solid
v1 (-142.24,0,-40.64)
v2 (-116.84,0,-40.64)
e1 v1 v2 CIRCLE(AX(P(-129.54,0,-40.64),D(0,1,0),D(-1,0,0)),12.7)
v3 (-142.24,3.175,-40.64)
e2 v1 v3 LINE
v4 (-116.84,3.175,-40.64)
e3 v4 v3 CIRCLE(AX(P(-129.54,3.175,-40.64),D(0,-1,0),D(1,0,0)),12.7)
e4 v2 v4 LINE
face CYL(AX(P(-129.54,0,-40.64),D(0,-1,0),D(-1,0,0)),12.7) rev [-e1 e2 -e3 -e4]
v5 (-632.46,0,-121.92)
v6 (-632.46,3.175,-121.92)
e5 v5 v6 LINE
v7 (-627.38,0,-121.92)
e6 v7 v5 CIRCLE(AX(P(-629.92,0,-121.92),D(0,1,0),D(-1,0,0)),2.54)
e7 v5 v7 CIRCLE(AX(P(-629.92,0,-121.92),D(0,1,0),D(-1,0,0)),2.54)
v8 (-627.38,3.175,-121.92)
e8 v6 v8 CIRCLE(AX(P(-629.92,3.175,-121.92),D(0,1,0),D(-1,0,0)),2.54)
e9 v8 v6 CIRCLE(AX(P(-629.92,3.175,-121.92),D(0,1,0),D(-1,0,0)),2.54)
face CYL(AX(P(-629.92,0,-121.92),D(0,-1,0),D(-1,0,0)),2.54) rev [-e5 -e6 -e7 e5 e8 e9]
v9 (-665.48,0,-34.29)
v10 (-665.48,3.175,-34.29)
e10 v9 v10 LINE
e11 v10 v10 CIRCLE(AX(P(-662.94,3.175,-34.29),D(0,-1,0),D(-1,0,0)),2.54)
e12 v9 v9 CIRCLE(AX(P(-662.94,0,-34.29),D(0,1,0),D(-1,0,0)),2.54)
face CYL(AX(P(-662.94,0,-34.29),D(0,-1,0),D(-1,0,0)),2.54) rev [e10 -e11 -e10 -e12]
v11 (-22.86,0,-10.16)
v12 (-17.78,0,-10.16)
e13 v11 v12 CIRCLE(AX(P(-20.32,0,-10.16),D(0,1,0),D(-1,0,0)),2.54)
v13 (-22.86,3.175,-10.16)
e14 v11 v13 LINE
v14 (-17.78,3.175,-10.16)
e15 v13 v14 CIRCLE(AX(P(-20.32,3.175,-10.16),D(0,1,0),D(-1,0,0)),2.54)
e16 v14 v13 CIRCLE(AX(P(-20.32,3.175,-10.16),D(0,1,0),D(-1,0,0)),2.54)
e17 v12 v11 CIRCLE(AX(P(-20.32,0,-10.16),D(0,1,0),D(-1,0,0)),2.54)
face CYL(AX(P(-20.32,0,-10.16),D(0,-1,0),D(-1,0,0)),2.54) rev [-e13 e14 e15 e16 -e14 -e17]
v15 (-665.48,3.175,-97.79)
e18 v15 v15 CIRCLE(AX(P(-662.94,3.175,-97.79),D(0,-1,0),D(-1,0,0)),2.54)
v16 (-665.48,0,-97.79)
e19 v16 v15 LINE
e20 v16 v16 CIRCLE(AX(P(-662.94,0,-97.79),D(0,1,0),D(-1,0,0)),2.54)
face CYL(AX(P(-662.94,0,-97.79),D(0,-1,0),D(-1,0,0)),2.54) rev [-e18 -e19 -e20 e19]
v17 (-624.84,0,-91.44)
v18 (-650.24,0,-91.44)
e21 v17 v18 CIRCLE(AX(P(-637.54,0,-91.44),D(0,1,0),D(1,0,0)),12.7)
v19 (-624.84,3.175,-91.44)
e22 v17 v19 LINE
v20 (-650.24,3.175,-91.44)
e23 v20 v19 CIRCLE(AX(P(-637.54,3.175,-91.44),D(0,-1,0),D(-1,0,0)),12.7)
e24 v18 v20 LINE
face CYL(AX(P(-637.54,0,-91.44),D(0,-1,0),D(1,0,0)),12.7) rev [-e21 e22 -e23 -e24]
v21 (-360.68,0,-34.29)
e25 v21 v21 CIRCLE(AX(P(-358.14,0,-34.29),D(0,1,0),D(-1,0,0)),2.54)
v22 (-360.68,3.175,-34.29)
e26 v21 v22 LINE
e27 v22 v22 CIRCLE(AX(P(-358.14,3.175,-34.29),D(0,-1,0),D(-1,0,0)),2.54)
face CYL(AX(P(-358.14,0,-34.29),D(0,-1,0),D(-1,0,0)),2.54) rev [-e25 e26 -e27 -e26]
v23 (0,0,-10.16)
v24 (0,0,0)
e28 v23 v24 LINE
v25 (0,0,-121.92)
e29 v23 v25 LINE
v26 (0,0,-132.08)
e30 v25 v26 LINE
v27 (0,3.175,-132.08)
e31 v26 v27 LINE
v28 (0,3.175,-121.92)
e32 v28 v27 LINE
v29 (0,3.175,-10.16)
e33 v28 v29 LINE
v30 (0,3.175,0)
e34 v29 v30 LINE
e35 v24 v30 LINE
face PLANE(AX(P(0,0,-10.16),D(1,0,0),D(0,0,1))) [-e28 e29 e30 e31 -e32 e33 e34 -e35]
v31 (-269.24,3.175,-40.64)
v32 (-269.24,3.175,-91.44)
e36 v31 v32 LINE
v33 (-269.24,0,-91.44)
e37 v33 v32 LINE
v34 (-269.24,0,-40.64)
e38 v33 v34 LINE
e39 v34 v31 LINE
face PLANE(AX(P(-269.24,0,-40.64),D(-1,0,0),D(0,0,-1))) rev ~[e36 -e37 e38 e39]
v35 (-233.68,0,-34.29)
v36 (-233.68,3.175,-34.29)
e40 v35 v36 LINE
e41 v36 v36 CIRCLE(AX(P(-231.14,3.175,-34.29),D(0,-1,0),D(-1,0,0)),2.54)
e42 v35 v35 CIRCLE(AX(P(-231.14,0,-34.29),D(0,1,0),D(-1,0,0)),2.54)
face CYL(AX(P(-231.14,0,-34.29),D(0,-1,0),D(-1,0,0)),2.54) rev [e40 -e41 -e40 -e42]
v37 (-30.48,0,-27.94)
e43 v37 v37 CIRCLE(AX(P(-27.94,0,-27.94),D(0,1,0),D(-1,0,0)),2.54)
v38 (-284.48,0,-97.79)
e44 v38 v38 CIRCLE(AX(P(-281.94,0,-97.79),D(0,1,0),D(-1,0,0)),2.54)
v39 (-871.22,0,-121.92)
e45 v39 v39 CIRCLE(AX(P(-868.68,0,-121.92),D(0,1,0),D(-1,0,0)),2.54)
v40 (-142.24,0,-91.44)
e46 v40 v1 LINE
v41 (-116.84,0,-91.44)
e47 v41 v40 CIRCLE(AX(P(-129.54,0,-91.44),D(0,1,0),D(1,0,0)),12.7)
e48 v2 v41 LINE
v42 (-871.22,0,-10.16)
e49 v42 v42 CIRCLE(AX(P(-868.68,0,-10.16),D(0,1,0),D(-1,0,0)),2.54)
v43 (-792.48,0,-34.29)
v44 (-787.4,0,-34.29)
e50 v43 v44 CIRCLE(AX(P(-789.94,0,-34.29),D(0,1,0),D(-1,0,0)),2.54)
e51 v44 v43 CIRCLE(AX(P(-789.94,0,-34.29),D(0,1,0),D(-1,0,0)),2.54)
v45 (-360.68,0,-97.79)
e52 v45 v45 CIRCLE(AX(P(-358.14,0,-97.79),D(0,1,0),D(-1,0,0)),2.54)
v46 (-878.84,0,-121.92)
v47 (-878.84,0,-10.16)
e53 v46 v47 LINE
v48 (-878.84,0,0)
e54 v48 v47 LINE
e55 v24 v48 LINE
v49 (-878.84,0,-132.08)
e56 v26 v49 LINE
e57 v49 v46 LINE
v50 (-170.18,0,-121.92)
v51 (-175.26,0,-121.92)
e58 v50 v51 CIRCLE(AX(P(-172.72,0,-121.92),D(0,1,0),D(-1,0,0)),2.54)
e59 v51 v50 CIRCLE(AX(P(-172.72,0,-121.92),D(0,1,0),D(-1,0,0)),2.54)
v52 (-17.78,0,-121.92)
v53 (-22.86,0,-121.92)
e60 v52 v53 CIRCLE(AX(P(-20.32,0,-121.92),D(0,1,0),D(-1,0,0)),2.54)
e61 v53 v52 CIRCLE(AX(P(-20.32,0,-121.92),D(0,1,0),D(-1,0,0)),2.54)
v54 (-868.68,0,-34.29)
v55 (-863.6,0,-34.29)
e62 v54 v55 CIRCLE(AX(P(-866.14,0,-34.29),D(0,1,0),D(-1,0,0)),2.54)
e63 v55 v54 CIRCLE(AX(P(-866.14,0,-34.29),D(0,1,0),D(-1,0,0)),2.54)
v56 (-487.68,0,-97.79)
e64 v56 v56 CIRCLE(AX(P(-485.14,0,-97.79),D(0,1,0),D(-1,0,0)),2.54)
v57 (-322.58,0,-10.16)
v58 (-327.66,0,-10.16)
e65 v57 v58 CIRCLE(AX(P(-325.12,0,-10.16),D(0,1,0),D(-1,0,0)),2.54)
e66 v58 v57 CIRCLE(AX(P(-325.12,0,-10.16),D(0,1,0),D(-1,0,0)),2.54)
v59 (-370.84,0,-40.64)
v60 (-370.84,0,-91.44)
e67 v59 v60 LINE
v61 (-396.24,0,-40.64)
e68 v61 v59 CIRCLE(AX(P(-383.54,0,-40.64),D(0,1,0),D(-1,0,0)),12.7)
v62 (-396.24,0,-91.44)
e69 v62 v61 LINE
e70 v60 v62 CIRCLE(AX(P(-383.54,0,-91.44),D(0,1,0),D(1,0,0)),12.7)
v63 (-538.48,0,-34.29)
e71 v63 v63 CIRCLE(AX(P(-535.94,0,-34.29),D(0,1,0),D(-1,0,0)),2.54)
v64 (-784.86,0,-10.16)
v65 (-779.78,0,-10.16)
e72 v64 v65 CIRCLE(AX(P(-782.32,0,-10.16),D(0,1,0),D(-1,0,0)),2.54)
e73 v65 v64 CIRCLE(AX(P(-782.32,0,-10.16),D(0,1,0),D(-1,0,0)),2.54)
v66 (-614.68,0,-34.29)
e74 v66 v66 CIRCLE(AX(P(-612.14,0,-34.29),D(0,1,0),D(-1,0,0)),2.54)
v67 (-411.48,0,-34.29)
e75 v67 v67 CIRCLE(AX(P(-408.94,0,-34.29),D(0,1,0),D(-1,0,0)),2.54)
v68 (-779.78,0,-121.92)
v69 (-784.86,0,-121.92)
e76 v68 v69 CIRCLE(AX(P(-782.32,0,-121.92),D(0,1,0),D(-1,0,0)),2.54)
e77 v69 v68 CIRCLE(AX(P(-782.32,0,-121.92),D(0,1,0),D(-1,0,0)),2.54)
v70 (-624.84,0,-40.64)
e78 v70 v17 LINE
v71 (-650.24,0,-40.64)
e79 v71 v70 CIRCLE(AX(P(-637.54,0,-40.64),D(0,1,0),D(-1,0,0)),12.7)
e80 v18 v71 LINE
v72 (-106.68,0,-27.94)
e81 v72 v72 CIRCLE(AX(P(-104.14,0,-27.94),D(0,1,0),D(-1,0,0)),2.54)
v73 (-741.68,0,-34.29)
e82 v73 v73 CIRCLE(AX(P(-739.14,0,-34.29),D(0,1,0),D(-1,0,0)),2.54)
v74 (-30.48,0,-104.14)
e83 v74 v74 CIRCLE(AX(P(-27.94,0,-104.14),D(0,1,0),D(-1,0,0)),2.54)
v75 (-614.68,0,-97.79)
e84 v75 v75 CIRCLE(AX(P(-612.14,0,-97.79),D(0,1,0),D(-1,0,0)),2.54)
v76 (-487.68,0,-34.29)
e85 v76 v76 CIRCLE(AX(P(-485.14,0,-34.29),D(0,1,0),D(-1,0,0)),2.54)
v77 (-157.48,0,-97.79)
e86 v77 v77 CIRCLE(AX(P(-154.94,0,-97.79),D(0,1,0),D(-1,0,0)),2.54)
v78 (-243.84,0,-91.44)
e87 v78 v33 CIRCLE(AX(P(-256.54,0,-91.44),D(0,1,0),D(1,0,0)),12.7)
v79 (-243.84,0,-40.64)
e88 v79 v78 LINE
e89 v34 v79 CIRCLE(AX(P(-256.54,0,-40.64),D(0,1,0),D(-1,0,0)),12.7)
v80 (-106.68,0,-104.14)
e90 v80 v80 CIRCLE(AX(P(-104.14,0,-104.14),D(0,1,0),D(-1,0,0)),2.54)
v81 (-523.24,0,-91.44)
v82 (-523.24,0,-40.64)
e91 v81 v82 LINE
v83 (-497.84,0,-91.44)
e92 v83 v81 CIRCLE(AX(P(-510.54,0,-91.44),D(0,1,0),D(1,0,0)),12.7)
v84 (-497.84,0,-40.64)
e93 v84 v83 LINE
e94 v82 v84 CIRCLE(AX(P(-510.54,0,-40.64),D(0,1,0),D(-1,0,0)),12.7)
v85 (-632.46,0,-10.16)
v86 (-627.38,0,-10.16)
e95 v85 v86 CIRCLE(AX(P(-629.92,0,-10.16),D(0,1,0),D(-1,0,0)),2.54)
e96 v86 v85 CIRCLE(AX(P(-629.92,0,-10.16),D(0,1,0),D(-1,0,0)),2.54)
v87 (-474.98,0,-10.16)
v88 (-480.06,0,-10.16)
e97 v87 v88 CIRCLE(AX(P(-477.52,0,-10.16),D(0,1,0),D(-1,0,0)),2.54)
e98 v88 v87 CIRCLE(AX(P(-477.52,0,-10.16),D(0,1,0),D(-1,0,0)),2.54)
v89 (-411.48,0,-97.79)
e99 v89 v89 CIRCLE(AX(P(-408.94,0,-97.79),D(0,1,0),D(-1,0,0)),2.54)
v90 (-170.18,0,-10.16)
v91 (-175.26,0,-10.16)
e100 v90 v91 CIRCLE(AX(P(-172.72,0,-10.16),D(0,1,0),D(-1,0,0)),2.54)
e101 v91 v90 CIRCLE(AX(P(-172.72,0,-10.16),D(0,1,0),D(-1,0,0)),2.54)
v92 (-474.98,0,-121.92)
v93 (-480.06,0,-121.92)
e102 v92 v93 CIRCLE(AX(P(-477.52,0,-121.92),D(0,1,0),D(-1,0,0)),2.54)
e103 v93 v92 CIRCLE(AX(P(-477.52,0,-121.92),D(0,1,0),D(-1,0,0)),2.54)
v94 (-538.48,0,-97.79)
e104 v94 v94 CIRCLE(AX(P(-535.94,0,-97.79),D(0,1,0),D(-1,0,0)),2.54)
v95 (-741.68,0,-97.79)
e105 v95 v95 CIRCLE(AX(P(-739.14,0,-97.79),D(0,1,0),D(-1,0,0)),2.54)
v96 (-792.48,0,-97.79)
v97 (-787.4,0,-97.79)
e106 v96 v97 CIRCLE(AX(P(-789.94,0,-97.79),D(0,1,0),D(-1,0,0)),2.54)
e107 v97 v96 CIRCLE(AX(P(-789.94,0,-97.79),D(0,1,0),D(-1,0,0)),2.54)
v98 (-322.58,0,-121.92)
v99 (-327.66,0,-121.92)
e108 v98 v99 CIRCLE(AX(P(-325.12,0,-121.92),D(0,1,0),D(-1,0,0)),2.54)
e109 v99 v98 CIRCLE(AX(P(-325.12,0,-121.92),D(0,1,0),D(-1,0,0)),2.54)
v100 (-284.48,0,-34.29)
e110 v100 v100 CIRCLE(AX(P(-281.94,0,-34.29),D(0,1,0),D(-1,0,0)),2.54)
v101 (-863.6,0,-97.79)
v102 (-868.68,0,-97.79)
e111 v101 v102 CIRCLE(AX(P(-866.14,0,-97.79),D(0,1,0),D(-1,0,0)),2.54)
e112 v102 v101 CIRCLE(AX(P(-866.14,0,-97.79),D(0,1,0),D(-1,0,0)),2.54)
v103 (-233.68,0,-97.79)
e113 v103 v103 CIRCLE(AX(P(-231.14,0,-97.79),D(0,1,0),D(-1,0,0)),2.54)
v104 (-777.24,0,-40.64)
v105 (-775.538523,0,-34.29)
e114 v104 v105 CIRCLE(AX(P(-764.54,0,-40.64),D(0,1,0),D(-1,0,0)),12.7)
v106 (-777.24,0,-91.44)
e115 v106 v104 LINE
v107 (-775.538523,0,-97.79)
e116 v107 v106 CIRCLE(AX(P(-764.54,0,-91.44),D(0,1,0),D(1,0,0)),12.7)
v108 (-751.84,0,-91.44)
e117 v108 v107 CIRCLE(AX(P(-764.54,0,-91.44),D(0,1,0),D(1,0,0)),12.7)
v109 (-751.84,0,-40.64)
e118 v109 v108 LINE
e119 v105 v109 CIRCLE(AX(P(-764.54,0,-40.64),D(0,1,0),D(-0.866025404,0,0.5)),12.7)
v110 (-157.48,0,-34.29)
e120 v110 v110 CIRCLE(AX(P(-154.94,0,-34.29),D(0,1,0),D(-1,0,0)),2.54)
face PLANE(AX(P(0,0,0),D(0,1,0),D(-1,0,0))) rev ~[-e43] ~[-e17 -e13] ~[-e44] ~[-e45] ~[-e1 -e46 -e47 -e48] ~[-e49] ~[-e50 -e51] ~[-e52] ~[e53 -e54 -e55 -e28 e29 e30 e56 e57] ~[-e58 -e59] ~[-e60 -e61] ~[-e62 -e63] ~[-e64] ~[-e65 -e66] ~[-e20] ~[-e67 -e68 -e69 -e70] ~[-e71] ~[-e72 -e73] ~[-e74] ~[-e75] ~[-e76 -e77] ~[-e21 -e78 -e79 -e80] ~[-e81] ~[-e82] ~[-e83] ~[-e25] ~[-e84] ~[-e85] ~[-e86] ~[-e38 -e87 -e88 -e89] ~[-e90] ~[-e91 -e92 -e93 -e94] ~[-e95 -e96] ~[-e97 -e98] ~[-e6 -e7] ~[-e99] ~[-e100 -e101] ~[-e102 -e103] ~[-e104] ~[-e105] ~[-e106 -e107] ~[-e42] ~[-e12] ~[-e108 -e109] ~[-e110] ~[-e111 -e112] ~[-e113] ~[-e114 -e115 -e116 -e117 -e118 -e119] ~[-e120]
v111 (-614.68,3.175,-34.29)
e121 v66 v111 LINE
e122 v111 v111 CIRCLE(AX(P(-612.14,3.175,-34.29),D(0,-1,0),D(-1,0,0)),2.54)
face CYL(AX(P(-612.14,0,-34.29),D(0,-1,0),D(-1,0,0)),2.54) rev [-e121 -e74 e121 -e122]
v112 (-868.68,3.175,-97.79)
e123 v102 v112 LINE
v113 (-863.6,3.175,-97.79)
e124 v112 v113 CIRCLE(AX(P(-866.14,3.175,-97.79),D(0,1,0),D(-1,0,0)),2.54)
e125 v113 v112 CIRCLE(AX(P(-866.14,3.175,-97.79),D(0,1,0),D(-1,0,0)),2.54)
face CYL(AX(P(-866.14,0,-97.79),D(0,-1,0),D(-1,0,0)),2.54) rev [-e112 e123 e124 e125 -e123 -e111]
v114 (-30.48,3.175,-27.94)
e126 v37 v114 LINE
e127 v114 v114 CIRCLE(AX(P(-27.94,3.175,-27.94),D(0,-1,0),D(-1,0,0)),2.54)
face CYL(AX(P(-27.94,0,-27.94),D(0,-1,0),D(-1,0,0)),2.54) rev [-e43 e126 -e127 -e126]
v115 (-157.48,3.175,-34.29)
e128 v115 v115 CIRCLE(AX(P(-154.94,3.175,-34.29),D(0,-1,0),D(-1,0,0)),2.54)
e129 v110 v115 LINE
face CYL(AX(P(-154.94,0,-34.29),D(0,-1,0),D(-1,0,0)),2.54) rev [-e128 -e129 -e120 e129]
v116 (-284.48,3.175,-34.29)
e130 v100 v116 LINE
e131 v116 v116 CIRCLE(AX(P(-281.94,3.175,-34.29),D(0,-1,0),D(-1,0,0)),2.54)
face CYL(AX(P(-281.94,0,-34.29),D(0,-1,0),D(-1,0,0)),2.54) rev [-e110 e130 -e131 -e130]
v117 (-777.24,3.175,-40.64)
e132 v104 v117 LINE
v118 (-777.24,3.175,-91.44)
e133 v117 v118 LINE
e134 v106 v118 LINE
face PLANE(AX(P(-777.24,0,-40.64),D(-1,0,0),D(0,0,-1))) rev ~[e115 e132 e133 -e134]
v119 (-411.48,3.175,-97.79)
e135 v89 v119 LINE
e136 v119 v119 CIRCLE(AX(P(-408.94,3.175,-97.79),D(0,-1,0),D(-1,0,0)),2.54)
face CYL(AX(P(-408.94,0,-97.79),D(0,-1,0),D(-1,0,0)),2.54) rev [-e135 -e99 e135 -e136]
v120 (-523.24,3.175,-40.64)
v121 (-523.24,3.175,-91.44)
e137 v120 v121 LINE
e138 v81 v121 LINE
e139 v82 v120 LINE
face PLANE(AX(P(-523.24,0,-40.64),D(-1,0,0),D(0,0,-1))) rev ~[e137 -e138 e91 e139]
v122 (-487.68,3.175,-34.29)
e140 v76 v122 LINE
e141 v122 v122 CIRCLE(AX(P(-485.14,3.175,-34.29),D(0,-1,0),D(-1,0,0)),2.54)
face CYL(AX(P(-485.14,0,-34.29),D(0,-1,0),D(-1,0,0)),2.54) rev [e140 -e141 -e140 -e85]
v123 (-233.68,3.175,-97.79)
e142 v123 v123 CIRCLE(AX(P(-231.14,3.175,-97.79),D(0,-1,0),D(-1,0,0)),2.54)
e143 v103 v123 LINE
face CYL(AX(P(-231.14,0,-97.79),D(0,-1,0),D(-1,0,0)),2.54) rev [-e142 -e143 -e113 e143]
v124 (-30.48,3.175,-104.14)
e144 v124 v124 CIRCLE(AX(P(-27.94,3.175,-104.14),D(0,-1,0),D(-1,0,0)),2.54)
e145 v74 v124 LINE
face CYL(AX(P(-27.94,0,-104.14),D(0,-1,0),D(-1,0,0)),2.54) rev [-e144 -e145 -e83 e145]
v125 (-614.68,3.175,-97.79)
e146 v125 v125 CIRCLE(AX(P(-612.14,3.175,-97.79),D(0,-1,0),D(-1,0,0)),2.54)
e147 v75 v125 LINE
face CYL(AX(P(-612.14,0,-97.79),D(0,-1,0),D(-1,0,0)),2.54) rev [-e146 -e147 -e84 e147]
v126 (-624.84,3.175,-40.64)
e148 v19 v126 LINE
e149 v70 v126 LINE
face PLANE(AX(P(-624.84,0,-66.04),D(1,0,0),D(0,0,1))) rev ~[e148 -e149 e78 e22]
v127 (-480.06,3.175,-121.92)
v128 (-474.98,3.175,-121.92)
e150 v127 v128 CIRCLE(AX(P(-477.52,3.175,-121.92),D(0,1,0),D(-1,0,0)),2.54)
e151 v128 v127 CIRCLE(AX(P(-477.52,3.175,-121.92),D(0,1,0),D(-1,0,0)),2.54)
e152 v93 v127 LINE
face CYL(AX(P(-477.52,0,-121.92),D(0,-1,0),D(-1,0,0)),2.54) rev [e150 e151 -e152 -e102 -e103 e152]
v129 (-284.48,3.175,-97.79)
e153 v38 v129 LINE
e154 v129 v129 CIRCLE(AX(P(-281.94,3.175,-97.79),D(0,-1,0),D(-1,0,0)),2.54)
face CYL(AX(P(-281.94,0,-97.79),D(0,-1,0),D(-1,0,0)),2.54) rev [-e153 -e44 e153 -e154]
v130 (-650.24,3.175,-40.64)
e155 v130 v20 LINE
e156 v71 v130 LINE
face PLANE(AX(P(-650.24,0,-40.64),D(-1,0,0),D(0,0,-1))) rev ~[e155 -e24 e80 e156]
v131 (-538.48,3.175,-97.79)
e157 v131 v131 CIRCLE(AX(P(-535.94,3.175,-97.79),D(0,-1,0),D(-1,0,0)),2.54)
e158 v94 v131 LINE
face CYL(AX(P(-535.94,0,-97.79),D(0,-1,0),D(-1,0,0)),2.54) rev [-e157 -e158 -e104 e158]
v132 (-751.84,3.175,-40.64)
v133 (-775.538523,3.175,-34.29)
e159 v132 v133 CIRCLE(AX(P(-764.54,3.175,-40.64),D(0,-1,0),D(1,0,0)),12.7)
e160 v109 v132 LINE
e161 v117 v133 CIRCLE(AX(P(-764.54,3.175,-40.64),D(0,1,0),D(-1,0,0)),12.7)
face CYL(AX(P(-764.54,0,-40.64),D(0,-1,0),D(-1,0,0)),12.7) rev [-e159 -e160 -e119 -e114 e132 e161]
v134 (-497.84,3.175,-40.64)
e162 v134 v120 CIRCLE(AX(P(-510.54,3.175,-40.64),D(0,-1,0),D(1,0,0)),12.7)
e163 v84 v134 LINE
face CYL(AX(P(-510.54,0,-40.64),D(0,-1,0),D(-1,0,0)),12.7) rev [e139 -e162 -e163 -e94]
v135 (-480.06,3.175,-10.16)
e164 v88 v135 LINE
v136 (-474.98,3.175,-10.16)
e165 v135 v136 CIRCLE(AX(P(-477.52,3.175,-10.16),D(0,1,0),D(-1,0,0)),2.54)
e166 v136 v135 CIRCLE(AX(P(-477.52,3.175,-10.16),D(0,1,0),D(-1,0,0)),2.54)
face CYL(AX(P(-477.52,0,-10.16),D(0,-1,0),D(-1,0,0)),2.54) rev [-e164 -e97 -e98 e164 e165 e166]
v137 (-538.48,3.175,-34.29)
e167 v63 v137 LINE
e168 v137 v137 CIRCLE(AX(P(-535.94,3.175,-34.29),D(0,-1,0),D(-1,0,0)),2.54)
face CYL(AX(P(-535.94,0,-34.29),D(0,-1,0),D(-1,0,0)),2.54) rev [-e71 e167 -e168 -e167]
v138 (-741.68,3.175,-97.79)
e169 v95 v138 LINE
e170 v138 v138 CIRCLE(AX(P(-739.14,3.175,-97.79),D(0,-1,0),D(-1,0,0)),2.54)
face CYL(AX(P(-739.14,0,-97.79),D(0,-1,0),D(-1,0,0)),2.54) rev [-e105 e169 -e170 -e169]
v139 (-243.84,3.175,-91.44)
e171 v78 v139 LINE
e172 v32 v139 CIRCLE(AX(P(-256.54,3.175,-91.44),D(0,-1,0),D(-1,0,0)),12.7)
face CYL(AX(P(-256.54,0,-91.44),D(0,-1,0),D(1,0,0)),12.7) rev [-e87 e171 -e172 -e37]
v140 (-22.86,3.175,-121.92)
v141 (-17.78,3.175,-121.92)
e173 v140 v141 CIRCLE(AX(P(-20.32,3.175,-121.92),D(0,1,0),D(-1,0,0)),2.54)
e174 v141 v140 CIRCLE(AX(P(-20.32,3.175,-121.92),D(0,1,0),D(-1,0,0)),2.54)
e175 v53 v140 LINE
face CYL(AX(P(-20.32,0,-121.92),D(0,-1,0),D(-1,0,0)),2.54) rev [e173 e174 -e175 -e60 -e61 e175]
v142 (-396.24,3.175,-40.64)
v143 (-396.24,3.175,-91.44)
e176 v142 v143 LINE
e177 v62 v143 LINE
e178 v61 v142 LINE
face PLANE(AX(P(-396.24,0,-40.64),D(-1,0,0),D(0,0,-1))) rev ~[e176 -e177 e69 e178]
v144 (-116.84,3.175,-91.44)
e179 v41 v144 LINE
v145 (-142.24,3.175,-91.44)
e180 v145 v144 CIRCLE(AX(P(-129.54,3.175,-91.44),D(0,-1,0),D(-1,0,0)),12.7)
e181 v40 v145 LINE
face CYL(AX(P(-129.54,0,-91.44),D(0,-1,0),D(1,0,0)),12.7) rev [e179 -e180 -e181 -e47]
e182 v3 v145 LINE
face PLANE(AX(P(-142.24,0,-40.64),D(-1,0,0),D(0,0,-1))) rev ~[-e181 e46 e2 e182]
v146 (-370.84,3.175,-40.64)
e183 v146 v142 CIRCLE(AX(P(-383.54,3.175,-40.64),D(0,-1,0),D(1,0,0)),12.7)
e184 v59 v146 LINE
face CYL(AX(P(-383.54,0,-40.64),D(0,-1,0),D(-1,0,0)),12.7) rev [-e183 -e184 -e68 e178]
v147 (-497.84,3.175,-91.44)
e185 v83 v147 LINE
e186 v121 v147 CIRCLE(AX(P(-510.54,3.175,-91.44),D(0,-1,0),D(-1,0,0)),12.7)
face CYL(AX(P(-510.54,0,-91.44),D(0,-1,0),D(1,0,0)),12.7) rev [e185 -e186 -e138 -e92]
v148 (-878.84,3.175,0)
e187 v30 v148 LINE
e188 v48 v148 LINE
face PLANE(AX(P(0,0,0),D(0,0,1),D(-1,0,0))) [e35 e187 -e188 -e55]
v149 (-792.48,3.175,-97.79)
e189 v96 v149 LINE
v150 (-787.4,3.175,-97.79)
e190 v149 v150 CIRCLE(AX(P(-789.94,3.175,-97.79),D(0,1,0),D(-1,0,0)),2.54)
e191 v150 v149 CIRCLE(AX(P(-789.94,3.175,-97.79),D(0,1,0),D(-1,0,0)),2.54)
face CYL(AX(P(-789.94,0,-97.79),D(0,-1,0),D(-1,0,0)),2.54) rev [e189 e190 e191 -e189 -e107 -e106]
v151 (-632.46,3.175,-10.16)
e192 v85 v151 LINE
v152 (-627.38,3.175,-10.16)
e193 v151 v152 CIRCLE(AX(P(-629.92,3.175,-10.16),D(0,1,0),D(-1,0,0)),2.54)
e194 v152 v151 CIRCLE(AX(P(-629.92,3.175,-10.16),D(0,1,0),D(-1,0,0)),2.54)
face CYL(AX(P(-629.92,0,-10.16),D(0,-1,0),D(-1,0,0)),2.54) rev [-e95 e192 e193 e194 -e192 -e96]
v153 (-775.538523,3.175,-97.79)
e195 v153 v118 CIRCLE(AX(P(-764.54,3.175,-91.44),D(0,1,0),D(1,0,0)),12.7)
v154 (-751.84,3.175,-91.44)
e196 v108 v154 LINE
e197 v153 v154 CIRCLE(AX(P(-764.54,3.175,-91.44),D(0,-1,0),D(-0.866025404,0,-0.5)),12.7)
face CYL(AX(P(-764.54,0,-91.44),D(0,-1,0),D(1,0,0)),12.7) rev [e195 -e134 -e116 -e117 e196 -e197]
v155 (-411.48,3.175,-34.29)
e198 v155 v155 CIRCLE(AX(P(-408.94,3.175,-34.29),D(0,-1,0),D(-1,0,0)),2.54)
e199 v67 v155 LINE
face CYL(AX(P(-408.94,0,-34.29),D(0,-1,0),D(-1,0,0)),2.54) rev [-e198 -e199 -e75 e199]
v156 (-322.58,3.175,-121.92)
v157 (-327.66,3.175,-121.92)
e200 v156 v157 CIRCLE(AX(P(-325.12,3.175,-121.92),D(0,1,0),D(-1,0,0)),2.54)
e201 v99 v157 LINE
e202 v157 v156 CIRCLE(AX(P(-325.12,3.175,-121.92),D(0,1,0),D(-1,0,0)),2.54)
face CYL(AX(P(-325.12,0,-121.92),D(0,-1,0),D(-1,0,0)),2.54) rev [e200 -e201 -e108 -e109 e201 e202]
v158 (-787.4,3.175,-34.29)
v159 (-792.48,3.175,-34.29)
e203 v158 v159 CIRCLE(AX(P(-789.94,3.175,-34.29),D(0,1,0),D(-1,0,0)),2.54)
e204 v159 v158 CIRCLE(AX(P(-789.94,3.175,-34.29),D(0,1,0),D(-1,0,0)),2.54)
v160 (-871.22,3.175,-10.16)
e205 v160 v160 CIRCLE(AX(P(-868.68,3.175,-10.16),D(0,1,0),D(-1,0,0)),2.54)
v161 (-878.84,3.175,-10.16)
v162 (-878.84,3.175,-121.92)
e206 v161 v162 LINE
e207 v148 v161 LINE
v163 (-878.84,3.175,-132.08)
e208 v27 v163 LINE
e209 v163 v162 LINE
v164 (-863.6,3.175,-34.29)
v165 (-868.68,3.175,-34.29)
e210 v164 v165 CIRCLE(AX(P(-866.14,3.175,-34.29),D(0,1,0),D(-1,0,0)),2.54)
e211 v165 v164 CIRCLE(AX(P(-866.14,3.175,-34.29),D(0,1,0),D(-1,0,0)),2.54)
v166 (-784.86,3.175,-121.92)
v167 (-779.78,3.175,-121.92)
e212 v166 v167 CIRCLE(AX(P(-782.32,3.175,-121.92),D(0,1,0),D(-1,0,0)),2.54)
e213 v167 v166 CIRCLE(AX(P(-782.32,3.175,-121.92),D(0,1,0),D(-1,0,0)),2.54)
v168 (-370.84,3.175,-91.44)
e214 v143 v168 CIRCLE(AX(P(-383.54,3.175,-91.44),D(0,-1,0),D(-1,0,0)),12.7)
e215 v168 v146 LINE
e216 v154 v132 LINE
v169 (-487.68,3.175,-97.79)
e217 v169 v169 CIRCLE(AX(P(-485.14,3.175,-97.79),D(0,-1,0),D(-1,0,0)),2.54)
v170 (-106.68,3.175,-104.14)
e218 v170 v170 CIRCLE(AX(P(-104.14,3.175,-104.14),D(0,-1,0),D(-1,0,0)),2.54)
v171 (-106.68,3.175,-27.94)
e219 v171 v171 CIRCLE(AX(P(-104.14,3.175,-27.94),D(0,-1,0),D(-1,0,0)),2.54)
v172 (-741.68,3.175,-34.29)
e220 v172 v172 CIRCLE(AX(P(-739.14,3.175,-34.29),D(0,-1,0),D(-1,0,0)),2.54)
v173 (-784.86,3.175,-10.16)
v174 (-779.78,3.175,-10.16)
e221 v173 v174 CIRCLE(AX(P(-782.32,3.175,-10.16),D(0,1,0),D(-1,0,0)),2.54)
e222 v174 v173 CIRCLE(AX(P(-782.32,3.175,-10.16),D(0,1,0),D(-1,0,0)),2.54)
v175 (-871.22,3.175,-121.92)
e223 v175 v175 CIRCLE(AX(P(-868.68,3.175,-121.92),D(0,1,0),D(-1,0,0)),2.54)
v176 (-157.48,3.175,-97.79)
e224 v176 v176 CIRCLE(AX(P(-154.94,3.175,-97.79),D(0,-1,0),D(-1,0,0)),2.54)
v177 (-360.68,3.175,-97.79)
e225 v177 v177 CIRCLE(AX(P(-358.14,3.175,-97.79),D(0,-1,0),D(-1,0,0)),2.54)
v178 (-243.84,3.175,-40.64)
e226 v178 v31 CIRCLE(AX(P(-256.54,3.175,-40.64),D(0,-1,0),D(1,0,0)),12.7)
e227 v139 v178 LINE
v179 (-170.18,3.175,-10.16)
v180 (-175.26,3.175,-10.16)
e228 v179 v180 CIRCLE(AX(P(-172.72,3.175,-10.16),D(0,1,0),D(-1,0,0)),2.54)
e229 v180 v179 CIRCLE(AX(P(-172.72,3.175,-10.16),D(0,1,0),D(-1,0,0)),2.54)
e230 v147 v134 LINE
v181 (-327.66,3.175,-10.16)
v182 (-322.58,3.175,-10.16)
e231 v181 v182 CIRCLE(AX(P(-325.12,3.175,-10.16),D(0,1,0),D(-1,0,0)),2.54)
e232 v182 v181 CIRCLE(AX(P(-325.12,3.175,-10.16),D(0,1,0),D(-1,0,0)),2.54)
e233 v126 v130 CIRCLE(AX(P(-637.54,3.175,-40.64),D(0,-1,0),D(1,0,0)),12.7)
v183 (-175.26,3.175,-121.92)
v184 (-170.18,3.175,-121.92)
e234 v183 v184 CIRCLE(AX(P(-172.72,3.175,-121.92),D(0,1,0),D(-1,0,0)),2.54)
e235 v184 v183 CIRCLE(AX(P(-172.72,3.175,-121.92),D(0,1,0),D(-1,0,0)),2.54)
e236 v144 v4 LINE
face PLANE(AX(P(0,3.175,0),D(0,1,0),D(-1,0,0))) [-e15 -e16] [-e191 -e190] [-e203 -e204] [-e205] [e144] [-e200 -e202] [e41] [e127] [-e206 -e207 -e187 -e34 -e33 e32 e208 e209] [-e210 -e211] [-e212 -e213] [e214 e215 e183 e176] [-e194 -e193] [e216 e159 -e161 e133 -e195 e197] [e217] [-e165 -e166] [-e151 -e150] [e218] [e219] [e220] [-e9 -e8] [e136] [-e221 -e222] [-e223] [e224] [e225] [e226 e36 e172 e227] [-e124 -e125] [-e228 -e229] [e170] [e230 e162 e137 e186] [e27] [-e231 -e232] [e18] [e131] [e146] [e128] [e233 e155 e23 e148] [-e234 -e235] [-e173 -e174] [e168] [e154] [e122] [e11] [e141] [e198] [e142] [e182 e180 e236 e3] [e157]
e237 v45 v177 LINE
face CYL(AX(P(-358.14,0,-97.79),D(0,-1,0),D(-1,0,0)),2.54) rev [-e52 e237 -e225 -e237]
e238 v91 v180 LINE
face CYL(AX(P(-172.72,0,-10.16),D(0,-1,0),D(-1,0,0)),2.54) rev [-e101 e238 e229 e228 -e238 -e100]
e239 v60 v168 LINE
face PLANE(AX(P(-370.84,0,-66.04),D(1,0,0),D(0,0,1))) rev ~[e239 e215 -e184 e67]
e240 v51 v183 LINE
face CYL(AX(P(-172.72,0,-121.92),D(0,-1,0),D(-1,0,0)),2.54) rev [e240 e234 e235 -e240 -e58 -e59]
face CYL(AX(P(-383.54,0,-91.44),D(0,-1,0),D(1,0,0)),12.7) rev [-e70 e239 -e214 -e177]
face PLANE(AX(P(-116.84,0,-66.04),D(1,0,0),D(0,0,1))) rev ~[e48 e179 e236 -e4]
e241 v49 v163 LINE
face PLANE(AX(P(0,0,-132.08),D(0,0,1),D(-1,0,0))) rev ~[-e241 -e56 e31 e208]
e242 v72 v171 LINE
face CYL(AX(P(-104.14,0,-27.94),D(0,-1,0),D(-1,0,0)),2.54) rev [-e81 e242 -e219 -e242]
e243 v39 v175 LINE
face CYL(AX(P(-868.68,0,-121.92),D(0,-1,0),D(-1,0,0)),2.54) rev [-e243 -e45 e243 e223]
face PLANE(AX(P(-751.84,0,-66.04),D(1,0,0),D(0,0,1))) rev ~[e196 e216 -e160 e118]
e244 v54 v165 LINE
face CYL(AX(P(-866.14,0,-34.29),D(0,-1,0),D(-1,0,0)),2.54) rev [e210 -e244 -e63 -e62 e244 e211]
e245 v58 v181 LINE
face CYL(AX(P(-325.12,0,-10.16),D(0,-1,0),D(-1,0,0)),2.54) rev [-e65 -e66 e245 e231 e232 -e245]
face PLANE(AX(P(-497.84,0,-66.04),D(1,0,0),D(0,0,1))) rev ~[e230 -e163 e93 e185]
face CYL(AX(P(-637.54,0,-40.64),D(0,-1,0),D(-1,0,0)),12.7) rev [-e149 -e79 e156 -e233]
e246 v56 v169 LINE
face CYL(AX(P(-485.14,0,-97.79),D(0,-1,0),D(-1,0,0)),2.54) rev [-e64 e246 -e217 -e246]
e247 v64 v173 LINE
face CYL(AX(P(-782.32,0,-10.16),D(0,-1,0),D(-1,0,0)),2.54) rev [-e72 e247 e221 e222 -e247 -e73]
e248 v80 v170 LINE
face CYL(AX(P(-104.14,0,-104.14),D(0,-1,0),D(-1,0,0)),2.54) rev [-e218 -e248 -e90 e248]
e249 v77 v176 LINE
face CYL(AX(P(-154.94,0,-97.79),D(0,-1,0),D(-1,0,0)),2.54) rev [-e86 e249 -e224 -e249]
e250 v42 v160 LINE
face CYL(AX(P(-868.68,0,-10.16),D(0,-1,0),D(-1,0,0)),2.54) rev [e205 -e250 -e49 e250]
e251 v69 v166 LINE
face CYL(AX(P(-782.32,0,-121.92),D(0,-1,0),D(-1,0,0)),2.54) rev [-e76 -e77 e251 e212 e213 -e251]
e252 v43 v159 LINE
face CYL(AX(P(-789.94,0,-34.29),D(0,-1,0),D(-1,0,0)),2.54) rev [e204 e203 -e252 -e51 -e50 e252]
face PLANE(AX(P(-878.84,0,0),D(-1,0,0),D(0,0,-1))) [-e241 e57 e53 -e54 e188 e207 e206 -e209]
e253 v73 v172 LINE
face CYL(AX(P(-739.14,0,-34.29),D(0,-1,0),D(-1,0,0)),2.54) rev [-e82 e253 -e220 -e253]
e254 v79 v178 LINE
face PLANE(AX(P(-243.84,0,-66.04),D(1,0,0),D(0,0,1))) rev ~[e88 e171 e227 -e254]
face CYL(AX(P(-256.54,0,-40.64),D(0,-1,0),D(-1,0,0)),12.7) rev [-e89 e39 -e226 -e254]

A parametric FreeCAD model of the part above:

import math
import FreeCAD as App
import Part
import Sketcher
from FreeCAD import Vector
Q = App.Units.Quantity

doc = App.newDocument("Part")
body = doc.addObject("PartDesign::Body", "Body")

# Sketch on XZ plane
sketch1 = doc.addObject("Sketcher::SketchObject", "Sketch")
body.addObject(sketch1)
sketch1.AttachmentSupport = (doc.XZ_Plane, [""])
sketch1.MapMode = "FlatFace"
sketch1.addGeometry([
    Part.LineSegment(Vector(-878.8, 0, 0), Vector(0, 0, 0)),  # 0
    Part.LineSegment(Vector(0, 0, 0), Vector(0, -10.2, 0)),  # 1
    Part.LineSegment(Vector(0, -10.2, 0), Vector(0, -121.9, 0)),  # 2
    Part.LineSegment(Vector(0, -121.9, 0), Vector(0, -132.1, 0)),  # 3
    Part.LineSegment(Vector(0, -132.1, 0), Vector(-878.8, -132.1, 0)),  # 4
    Part.LineSegment(Vector(-878.8, -132.1, 0), Vector(-878.8, -121.9, 0)),  # 5
    Part.LineSegment(Vector(-878.8, -121.9, 0), Vector(-878.8, -10.2, 0)),  # 6
    Part.LineSegment(Vector(-878.8, -10.2, 0), Vector(-878.8, 0, 0)),  # 7
    Part.ArcOfCircle(Part.Circle(Vector(-20.3, -10.2, 0), Vector(0, 0, 1), 2.5), math.radians(180), math.radians(360)),  # 8
    Part.ArcOfCircle(Part.Circle(Vector(-20.3, -10.2, 0), Vector(0, 0, 1), 2.5), math.radians(0), math.radians(180)),  # 9
    Part.ArcOfCircle(Part.Circle(Vector(-172.7, -10.2, 0), Vector(0, 0, 1), 2.5), math.radians(180), math.radians(360)),  # 10
    Part.ArcOfCircle(Part.Circle(Vector(-172.7, -10.2, 0), Vector(0, 0, 1), 2.5), math.radians(0), math.radians(180)),  # 11
    Part.ArcOfCircle(Part.Circle(Vector(-325.1, -10.2, 0), Vector(0, 0, 1), 2.5), math.radians(180), math.radians(360)),  # 12
    Part.ArcOfCircle(Part.Circle(Vector(-325.1, -10.2, 0), Vector(0, 0, 1), 2.5), math.radians(0), math.radians(180)),  # 13
    Part.ArcOfCircle(Part.Circle(Vector(-477.5, -10.2, 0), Vector(0, 0, 1), 2.5), math.radians(180), math.radians(360)),  # 14
    Part.ArcOfCircle(Part.Circle(Vector(-477.5, -10.2, 0), Vector(0, 0, 1), 2.5), math.radians(0), math.radians(180)),  # 15
    Part.ArcOfCircle(Part.Circle(Vector(-629.9, -10.2, 0), Vector(0, 0, 1), 2.5), math.radians(180), math.radians(360)),  # 16
    Part.ArcOfCircle(Part.Circle(Vector(-629.9, -10.2, 0), Vector(0, 0, 1), 2.5), math.radians(0), math.radians(180)),  # 17
    Part.Circle(Vector(-782.3, -10.2, 0), Vector(0, 0, 1), 2.5),  # 18
    Part.Circle(Vector(-868.7, -10.2, 0), Vector(0, 0, 1), 2.5),  # 19
    Part.LineSegment(Vector(-777.2, -40.6, 0), Vector(-777.2, -91.4, 0)),  # 20
    Part.ArcOfCircle(Part.Circle(Vector(-764.5, -91.4, 0), Vector(0, 0, 1), 12.7), math.radians(180), math.radians(210)),  # 21
    Part.ArcOfCircle(Part.Circle(Vector(-764.5, -91.4, 0), Vector(0, 0, 1), 12.7), math.radians(-150), math.radians(0)),  # 22
    Part.LineSegment(Vector(-751.8, -91.4, 0), Vector(-751.8, -40.6, 0)),  # 23
    Part.ArcOfCircle(Part.Circle(Vector(-764.5, -40.6, 0), Vector(0, 0, 1), 12.7), math.radians(0), math.radians(150)),  # 24
    Part.ArcOfCircle(Part.Circle(Vector(-764.5, -40.6, 0), Vector(0, 0, 1), 12.7), math.radians(150), math.radians(180)),  # 25
    Part.Circle(Vector(-739.1, -34.3, 0), Vector(0, 0, 1), 2.5),  # 26
    Part.Circle(Vector(-662.9, -34.3, 0), Vector(0, 0, 1), 2.5),  # 27
    Part.LineSegment(Vector(-650.2, -40.6, 0), Vector(-650.2, -91.4, 0)),  # 28
    Part.ArcOfCircle(Part.Circle(Vector(-637.5, -91.4, 0), Vector(0, 0, 1), 12.7), math.radians(180), math.radians(360)),  # 29
    Part.LineSegment(Vector(-624.8, -91.4, 0), Vector(-624.8, -40.6, 0)),  # 30
    Part.ArcOfCircle(Part.Circle(Vector(-637.5, -40.6, 0), Vector(0, 0, 1), 12.7), math.radians(0), math.radians(180)),  # 31
    Part.Circle(Vector(-612.1, -34.3, 0), Vector(0, 0, 1), 2.5),  # 32
    Part.Circle(Vector(-535.9, -34.3, 0), Vector(0, 0, 1), 2.5),  # 33
    Part.LineSegment(Vector(-523.2, -40.6, 0), Vector(-523.2, -91.4, 0)),  # 34
    Part.ArcOfCircle(Part.Circle(Vector(-510.5, -91.4, 0), Vector(0, 0, 1), 12.7), math.radians(180), math.radians(360)),  # 35
    Part.LineSegment(Vector(-497.8, -91.4, 0), Vector(-497.8, -40.6, 0)),  # 36
    Part.ArcOfCircle(Part.Circle(Vector(-510.5, -40.6, 0), Vector(0, 0, 1), 12.7), math.radians(0), math.radians(180)),  # 37
    Part.Circle(Vector(-485.1, -34.3, 0), Vector(0, 0, 1), 2.5),  # 38
    Part.Circle(Vector(-408.9, -34.3, 0), Vector(0, 0, 1), 2.5),  # 39
    Part.LineSegment(Vector(-396.2, -40.6, 0), Vector(-396.2, -91.4, 0)),  # 40
    Part.ArcOfCircle(Part.Circle(Vector(-383.5, -91.4, 0), Vector(0, 0, 1), 12.7), math.radians(180), math.radians(360)),  # 41
    Part.LineSegment(Vector(-370.8, -91.4, 0), Vector(-370.8, -40.6, 0)),  # 42
    Part.ArcOfCircle(Part.Circle(Vector(-383.5, -40.6, 0), Vector(0, 0, 1), 12.7), math.radians(0), math.radians(180)),  # 43
    Part.Circle(Vector(-358.1, -34.3, 0), Vector(0, 0, 1), 2.5),  # 44
    Part.Circle(Vector(-281.9, -34.3, 0), Vector(0, 0, 1), 2.5),  # 45
    Part.LineSegment(Vector(-269.2, -40.6, 0), Vector(-269.2, -91.4, 0)),  # 46
    Part.ArcOfCircle(Part.Circle(Vector(-256.5, -91.4, 0), Vector(0, 0, 1), 12.7), math.radians(180), math.radians(360)),  # 47
    Part.LineSegment(Vector(-243.8, -91.4, 0), Vector(-243.8, -40.6, 0)),  # 48
    Part.ArcOfCircle(Part.Circle(Vector(-256.5, -40.6, 0), Vector(0, 0, 1), 12.7), math.radians(0), math.radians(180)),  # 49
    Part.Circle(Vector(-231.1, -34.3, 0), Vector(0, 0, 1), 2.5),  # 50
    Part.Circle(Vector(-154.9, -34.3, 0), Vector(0, 0, 1), 2.5),  # 51
    Part.LineSegment(Vector(-142.2, -40.6, 0), Vector(-142.2, -91.4, 0)),  # 52
    Part.ArcOfCircle(Part.Circle(Vector(-129.5, -91.4, 0), Vector(0, 0, 1), 12.7), math.radians(180), math.radians(360)),  # 53
    Part.LineSegment(Vector(-116.8, -91.4, 0), Vector(-116.8, -40.6, 0)),  # 54
    Part.ArcOfCircle(Part.Circle(Vector(-129.5, -40.6, 0), Vector(0, 0, 1), 12.7), math.radians(0), math.radians(180)),  # 55
    Part.Circle(Vector(-104.1, -27.9, 0), Vector(0, 0, 1), 2.5),  # 56
    Part.Circle(Vector(-27.9, -27.9, 0), Vector(0, 0, 1), 2.5),  # 57
    Part.ArcOfCircle(Part.Circle(Vector(-789.9, -34.3, 0), Vector(0, 0, 1), 2.5), math.radians(180), math.radians(360)),  # 58
    Part.ArcOfCircle(Part.Circle(Vector(-789.9, -34.3, 0), Vector(0, 0, 1), 2.5), math.radians(0), math.radians(180)),  # 59
    Part.Circle(Vector(-866.1, -34.3, 0), Vector(0, 0, 1), 2.5),  # 60
    Part.Circle(Vector(-27.9, -104.1, 0), Vector(0, 0, 1), 2.5),  # 61
    Part.Circle(Vector(-104.1, -104.1, 0), Vector(0, 0, 1), 2.5),  # 62
    Part.Circle(Vector(-154.9, -97.8, 0), Vector(0, 0, 1), 2.5),  # 63
    Part.Circle(Vector(-231.1, -97.8, 0), Vector(0, 0, 1), 2.5),  # 64
    Part.Circle(Vector(-281.9, -97.8, 0), Vector(0, 0, 1), 2.5),  # 65
    Part.Circle(Vector(-358.1, -97.8, 0), Vector(0, 0, 1), 2.5),  # 66
    Part.Circle(Vector(-408.9, -97.8, 0), Vector(0, 0, 1), 2.5),  # 67
    Part.Circle(Vector(-485.1, -97.8, 0), Vector(0, 0, 1), 2.5),  # 68
    Part.Circle(Vector(-535.9, -97.8, 0), Vector(0, 0, 1), 2.5),  # 69
    Part.Circle(Vector(-612.1, -97.8, 0), Vector(0, 0, 1), 2.5),  # 70
    Part.Circle(Vector(-662.9, -97.8, 0), Vector(0, 0, 1), 2.5),  # 71
    Part.Circle(Vector(-739.1, -97.8, 0), Vector(0, 0, 1), 2.5),  # 72
    Part.ArcOfCircle(Part.Circle(Vector(-789.9, -97.8, 0), Vector(0, 0, 1), 2.5), math.radians(180), math.radians(360)),  # 73
    Part.ArcOfCircle(Part.Circle(Vector(-789.9, -97.8, 0), Vector(0, 0, 1), 2.5), math.radians(0), math.radians(180)),  # 74
    Part.Circle(Vector(-866.1, -97.8, 0), Vector(0, 0, 1), 2.5),  # 75
    Part.ArcOfCircle(Part.Circle(Vector(-20.3, -121.9, 0), Vector(0, 0, 1), 2.5), math.radians(180), math.radians(360)),  # 76
    Part.ArcOfCircle(Part.Circle(Vector(-20.3, -121.9, 0), Vector(0, 0, 1), 2.5), math.radians(0), math.radians(180)),  # 77
    Part.ArcOfCircle(Part.Circle(Vector(-172.7, -121.9, 0), Vector(0, 0, 1), 2.5), math.radians(180), math.radians(360)),  # 78
    Part.ArcOfCircle(Part.Circle(Vector(-172.7, -121.9, 0), Vector(0, 0, 1), 2.5), math.radians(0), math.radians(180)),  # 79
    Part.ArcOfCircle(Part.Circle(Vector(-325.1, -121.9, 0), Vector(0, 0, 1), 2.5), math.radians(180), math.radians(360)),  # 80
    Part.ArcOfCircle(Part.Circle(Vector(-325.1, -121.9, 0), Vector(0, 0, 1), 2.5), math.radians(0), math.radians(180)),  # 81
    Part.ArcOfCircle(Part.Circle(Vector(-477.5, -121.9, 0), Vector(0, 0, 1), 2.5), math.radians(180), math.radians(360)),  # 82
    Part.ArcOfCircle(Part.Circle(Vector(-477.5, -121.9, 0), Vector(0, 0, 1), 2.5), math.radians(0), math.radians(180)),  # 83
    Part.ArcOfCircle(Part.Circle(Vector(-629.9, -121.9, 0), Vector(0, 0, 1), 2.5), math.radians(180), math.radians(360)),  # 84
    Part.ArcOfCircle(Part.Circle(Vector(-629.9, -121.9, 0), Vector(0, 0, 1), 2.5), math.radians(0), math.radians(180)),  # 85
    Part.Circle(Vector(-782.3, -121.9, 0), Vector(0, 0, 1), 2.5),  # 86
    Part.Circle(Vector(-868.7, -121.9, 0), Vector(0, 0, 1), 2.5),  # 87
], False)
sketch1.addConstraint([
    Sketcher.Constraint("Coincident", 0, 2, 1, 1),
    Sketcher.Constraint("Coincident", 1, 2, 2, 1),
    Sketcher.Constraint("Coincident", 2, 2, 3, 1),
    Sketcher.Constraint("Coincident", 3, 2, 4, 1),
    Sketcher.Constraint("Coincident", 4, 2, 5, 1),
    Sketcher.Constraint("Coincident", 5, 2, 6, 1),
    Sketcher.Constraint("Coincident", 6, 2, 7, 1),
    Sketcher.Constraint("Coincident", 7, 2, 0, 1),
    Sketcher.Constraint("Tangent", 8, 1, 9, 2),
    Sketcher.Constraint("Coincident", 9, 1, 8, 2),
    Sketcher.Constraint("Tangent", 10, 1, 11, 2),
    Sketcher.Constraint("Coincident", 11, 1, 10, 2),
    Sketcher.Constraint("Tangent", 12, 1, 13, 2),
    Sketcher.Constraint("Coincident", 13, 1, 12, 2),
    Sketcher.Constraint("Tangent", 14, 1, 15, 2),
    Sketcher.Constraint("Coincident", 15, 1, 14, 2),
    Sketcher.Constraint("Tangent", 16, 1, 17, 2),
    Sketcher.Constraint("Coincident", 17, 1, 16, 2),
    Sketcher.Constraint("Tangent", 20, 2, 21, 1),
    Sketcher.Constraint("Tangent", 21, 2, 22, 1),
    Sketcher.Constraint("Tangent", 22, 2, 23, 1),
    Sketcher.Constraint("Tangent", 23, 2, 24, 1),
    Sketcher.Constraint("Tangent", 24, 2, 25, 1),
    Sketcher.Constraint("Tangent", 25, 2, 20, 1),
    Sketcher.Constraint("Tangent", 28, 2, 29, 1),
    Sketcher.Constraint("Tangent", 29, 2, 30, 1),
    Sketcher.Constraint("Tangent", 30, 2, 31, 1),
    Sketcher.Constraint("Tangent", 31, 2, 28, 1),
    Sketcher.Constraint("Tangent", 34, 2, 35, 1),
    Sketcher.Constraint("Tangent", 35, 2, 36, 1),
    Sketcher.Constraint("Tangent", 36, 2, 37, 1),
    Sketcher.Constraint("Tangent", 37, 2, 34, 1),
    Sketcher.Constraint("Tangent", 40, 2, 41, 1),
    Sketcher.Constraint("Tangent", 41, 2, 42, 1),
    Sketcher.Constraint("Tangent", 42, 2, 43, 1),
    Sketcher.Constraint("Tangent", 43, 2, 40, 1),
    Sketcher.Constraint("Tangent", 46, 2, 47, 1),
    Sketcher.Constraint("Tangent", 47, 2, 48, 1),
    Sketcher.Constraint("Tangent", 48, 2, 49, 1),
    Sketcher.Constraint("Tangent", 49, 2, 46, 1),
    Sketcher.Constraint("Tangent", 52, 2, 53, 1),
    Sketcher.Constraint("Tangent", 53, 2, 54, 1),
    Sketcher.Constraint("Tangent", 54, 2, 55, 1),
    Sketcher.Constraint("Tangent", 55, 2, 52, 1),
    Sketcher.Constraint("Tangent", 58, 1, 59, 2),
    Sketcher.Constraint("Coincident", 59, 1, 58, 2),
    Sketcher.Constraint("Tangent", 73, 1, 74, 2),
    Sketcher.Constraint("Coincident", 74, 1, 73, 2),
    Sketcher.Constraint("Tangent", 76, 1, 77, 2),
    Sketcher.Constraint("Coincident", 77, 1, 76, 2),
    Sketcher.Constraint("Tangent", 78, 1, 79, 2),
    Sketcher.Constraint("Coincident", 79, 1, 78, 2),
    Sketcher.Constraint("Tangent", 80, 1, 81, 2),
    Sketcher.Constraint("Coincident", 81, 1, 80, 2),
    Sketcher.Constraint("Tangent", 82, 1, 83, 2),
    Sketcher.Constraint("Coincident", 83, 1, 82, 2),
    Sketcher.Constraint("Tangent", 84, 1, 85, 2),
    Sketcher.Constraint("Coincident", 85, 1, 84, 2),
    Sketcher.Constraint("Horizontal", 0),
    Sketcher.Constraint("Vertical", 1),
    Sketcher.Constraint("Vertical", 2),
    Sketcher.Constraint("Vertical", 3),
    Sketcher.Constraint("Horizontal", 4),
    Sketcher.Constraint("Vertical", 5),
    Sketcher.Constraint("Vertical", 6),
    Sketcher.Constraint("Vertical", 7),
    Sketcher.Constraint("Vertical", 20),
    Sketcher.Constraint("Vertical", 23),
    Sketcher.Constraint("Vertical", 28),
    Sketcher.Constraint("Vertical", 30),
    Sketcher.Constraint("Vertical", 34),
    Sketcher.Constraint("Vertical", 36),
    Sketcher.Constraint("Vertical", 40),
    Sketcher.Constraint("Vertical", 42),
    Sketcher.Constraint("Vertical", 46),
    Sketcher.Constraint("Vertical", 48),
    Sketcher.Constraint("Vertical", 52),
    Sketcher.Constraint("Vertical", 54),
    Sketcher.Constraint("Coincident", 0, 2, -1, 1),
    Sketcher.Constraint("Equal", 9, 10),
    Sketcher.Constraint("Equal", 11, 12),
    Sketcher.Constraint("Equal", 13, 14),
    Sketcher.Constraint("Equal", 15, 16),
    Sketcher.Constraint("Equal", 17, 18),
    Sketcher.Constraint("Equal", 18, 19),
    Sketcher.Constraint("Equal", 21, 22),
    Sketcher.Constraint("Equal", 22, 24),
    Sketcher.Constraint("Equal", 19, 26),
    Sketcher.Constraint("Equal", 26, 27),
    Sketcher.Constraint("Equal", 25, 29),
    Sketcher.Constraint("Equal", 27, 32),
    Sketcher.Constraint("Equal", 32, 33),
    Sketcher.Constraint("Equal", 31, 35),
    Sketcher.Constraint("Equal", 33, 38),
    Sketcher.Constraint("Equal", 38, 39),
    Sketcher.Constraint("Equal", 37, 41),
    Sketcher.Constraint("Equal", 39, 44),
    Sketcher.Constraint("Equal", 44, 45),
    Sketcher.Constraint("Equal", 43, 47),
    Sketcher.Constraint("Equal", 45, 50),
    Sketcher.Constraint("Equal", 50, 51),
    Sketcher.Constraint("Equal", 49, 53),
    Sketcher.Constraint("Equal", 51, 56),
    Sketcher.Constraint("Equal", 56, 57),
    Sketcher.Constraint("Equal", 57, 58),
    Sketcher.Constraint("Equal", 59, 60),
    Sketcher.Constraint("Equal", 60, 61),
    Sketcher.Constraint("Equal", 61, 62),
    Sketcher.Constraint("Equal", 62, 63),
    Sketcher.Constraint("Equal", 63, 64),
    Sketcher.Constraint("Equal", 64, 65),
    Sketcher.Constraint("Equal", 65, 66),
    Sketcher.Constraint("Equal", 66, 67),
    Sketcher.Constraint("Equal", 67, 68),
    Sketcher.Constraint("Equal", 68, 69),
    Sketcher.Constraint("Equal", 69, 70),
    Sketcher.Constraint("Equal", 70, 71),
    Sketcher.Constraint("Equal", 71, 72),
    Sketcher.Constraint("Equal", 72, 73),
    Sketcher.Constraint("Equal", 74, 75),
    Sketcher.Constraint("Equal", 75, 76),
    Sketcher.Constraint("Equal", 77, 78),
    Sketcher.Constraint("Equal", 79, 80),
    Sketcher.Constraint("Equal", 81, 82),
    Sketcher.Constraint("Equal", 83, 84),
    Sketcher.Constraint("Equal", 85, 86),
    Sketcher.Constraint("Equal", 86, 87),
    Sketcher.Constraint("Horizontal", 9, 3, 10, 3),
    Sketcher.Constraint("Horizontal", 11, 3, 12, 3),
    Sketcher.Constraint("Horizontal", 13, 3, 14, 3),
    Sketcher.Constraint("Horizontal", 15, 3, 16, 3),
    Sketcher.Constraint("Horizontal", 17, 3, 18, 3),
    Sketcher.Constraint("Horizontal", 18, 3, 19, 3),
    Sketcher.Constraint("Horizontal", 26, 3, 27, 3),
    Sketcher.Constraint("Horizontal", 22, 3, 29, 3),
    Sketcher.Constraint("Horizontal", 25, 3, 31, 3),
    Sketcher.Constraint("Horizontal", 27, 3, 32, 3),
    Sketcher.Constraint("Horizontal", 32, 3, 33, 3),
    Sketcher.Constraint("Horizontal", 29, 3, 35, 3),
    Sketcher.Constraint("Horizontal", 31, 3, 37, 3),
    Sketcher.Constraint("Horizontal", 33, 3, 38, 3),
    Sketcher.Constraint("Horizontal", 38, 3, 39, 3),
    Sketcher.Constraint("Horizontal", 35, 3, 41, 3),
    Sketcher.Constraint("Horizontal", 37, 3, 43, 3),
    Sketcher.Constraint("Horizontal", 39, 3, 44, 3),
    Sketcher.Constraint("Horizontal", 44, 3, 45, 3),
    Sketcher.Constraint("Horizontal", 41, 3, 47, 3),
    Sketcher.Constraint("Horizontal", 43, 3, 49, 3),
    Sketcher.Constraint("Horizontal", 45, 3, 50, 3),
    Sketcher.Constraint("Horizontal", 50, 3, 51, 3),
    Sketcher.Constraint("Horizontal", 47, 3, 53, 3),
    Sketcher.Constraint("Horizontal", 49, 3, 55, 3),
    Sketcher.Constraint("Horizontal", 56, 3, 57, 3),
    Sketcher.Constraint("Horizontal", 51, 3, 58, 3),
    Sketcher.Constraint("Horizontal", 59, 3, 60, 3),
    Sketcher.Constraint("Horizontal", 61, 3, 62, 3),
    Sketcher.Constraint("Horizontal", 63, 3, 64, 3),
    Sketcher.Constraint("Horizontal", 64, 3, 65, 3),
    Sketcher.Constraint("Horizontal", 65, 3, 66, 3),
    Sketcher.Constraint("Horizontal", 66, 3, 67, 3),
    Sketcher.Constraint("Horizontal", 67, 3, 68, 3),
    Sketcher.Constraint("Horizontal", 68, 3, 69, 3),
    Sketcher.Constraint("Horizontal", 69, 3, 70, 3),
    Sketcher.Constraint("Horizontal", 70, 3, 71, 3),
    Sketcher.Constraint("Horizontal", 71, 3, 72, 3),
    Sketcher.Constraint("Horizontal", 72, 3, 73, 3),
    Sketcher.Constraint("Horizontal", 74, 3, 75, 3),
    Sketcher.Constraint("Horizontal", 77, 3, 78, 3),
    Sketcher.Constraint("Horizontal", 79, 3, 80, 3),
    Sketcher.Constraint("Horizontal", 81, 3, 82, 3),
    Sketcher.Constraint("Horizontal", 83, 3, 84, 3),
    Sketcher.Constraint("Horizontal", 85, 3, 86, 3),
    Sketcher.Constraint("Horizontal", 86, 3, 87, 3),
    Sketcher.Constraint("Horizontal", 19, 3, 1, 2),
    Sketcher.Constraint("Horizontal", 87, 3, 2, 2),
    Sketcher.Constraint("Horizontal", 2, 2, 5, 2),
    Sketcher.Constraint("Horizontal", 1, 2, 6, 2),
    Sketcher.Constraint("Horizontal", 6, 2, 8, 1),
    Sketcher.Constraint("Horizontal", 8, 1, 9, 1),
    Sketcher.Constraint("Horizontal", 9, 1, 10, 1),
    Sketcher.Constraint("Horizontal", 10, 1, 11, 1),
    Sketcher.Constraint("Horizontal", 11, 1, 12, 1),
    Sketcher.Constraint("Horizontal", 12, 1, 13, 1),
    Sketcher.Constraint("Horizontal", 13, 1, 14, 1),
    Sketcher.Constraint("Horizontal", 14, 1, 15, 1),
    Sketcher.Constraint("Horizontal", 15, 1, 16, 1),
    Sketcher.Constraint("Horizontal", 16, 1, 17, 1),
    Sketcher.Constraint("Horizontal", 75, 3, 21, 2),
    Sketcher.Constraint("Horizontal", 60, 3, 24, 2),
    Sketcher.Constraint("Horizontal", 24, 2, 58, 1),
    Sketcher.Constraint("Horizontal", 58, 1, 59, 1),
    Sketcher.Constraint("Horizontal", 21, 2, 73, 1),
    Sketcher.Constraint("Horizontal", 73, 1, 74, 1),
    Sketcher.Constraint("Horizontal", 5, 2, 76, 1),
    Sketcher.Constraint("Horizontal", 76, 1, 77, 1),
    Sketcher.Constraint("Horizontal", 77, 1, 78, 1),
    Sketcher.Constraint("Horizontal", 78, 1, 79, 1),
    Sketcher.Constraint("Horizontal", 79, 1, 80, 1),
    Sketcher.Constraint("Horizontal", 80, 1, 81, 1),
    Sketcher.Constraint("Horizontal", 81, 1, 82, 1),
    Sketcher.Constraint("Horizontal", 82, 1, 83, 1),
    Sketcher.Constraint("Horizontal", 83, 1, 84, 1),
    Sketcher.Constraint("Horizontal", 84, 1, 85, 1),
    Sketcher.Constraint("Vertical", 57, 3, 61, 3),
    Sketcher.Constraint("Vertical", 56, 3, 62, 3),
    Sketcher.Constraint("Vertical", 51, 3, 63, 3),
    Sketcher.Constraint("Vertical", 50, 3, 64, 3),
    Sketcher.Constraint("Vertical", 45, 3, 65, 3),
    Sketcher.Constraint("Vertical", 44, 3, 66, 3),
    Sketcher.Constraint("Vertical", 39, 3, 67, 3),
    Sketcher.Constraint("Vertical", 38, 3, 68, 3),
    Sketcher.Constraint("Vertical", 33, 3, 69, 3),
    Sketcher.Constraint("Vertical", 32, 3, 70, 3),
    Sketcher.Constraint("Vertical", 27, 3, 71, 3),
    Sketcher.Constraint("Vertical", 26, 3, 72, 3),
    Sketcher.Constraint("Vertical", 59, 3, 73, 3),
    Sketcher.Constraint("Vertical", 60, 3, 75, 3),
    Sketcher.Constraint("Vertical", 9, 3, 76, 3),
    Sketcher.Constraint("Vertical", 11, 3, 78, 3),
    Sketcher.Constraint("Vertical", 13, 3, 80, 3),
    Sketcher.Constraint("Vertical", 15, 3, 82, 3),
    Sketcher.Constraint("Vertical", 17, 3, 84, 3),
    Sketcher.Constraint("Vertical", 18, 3, 86, 3),
    Sketcher.Constraint("Vertical", 19, 3, 87, 3),
    Sketcher.Constraint("Vertical", 21, 2, 24, 2),
    Sketcher.Constraint("Equal", 1, 3),
    Sketcher.Constraint("Diameter", 18, Q("0.2 in")),
    Sketcher.Constraint("Radius", 21, Q("0.5 in")),
    Sketcher.Constraint("DistanceY", 20, 2, 20, 1, Q("2 in")),
    Sketcher.Constraint("DistanceX", 0, 1, 0, 2, Q("34.6 in")),
    Sketcher.Constraint("DistanceY", 1, 2, 1, 1, Q("0.4 in")),
    Sketcher.Constraint("DistanceX", 8, 3, -1, 1, Q("0.8 in")),
    Sketcher.Constraint("DistanceY", 56, 3, -1, 1, Q("1.1 in")),
    Sketcher.Constraint("DistanceX", 57, 3, -1, 1, Q("1.1 in")),
    Sketcher.Constraint("DistanceY", 2, 2, 2, 1, Q("4.4 in")),
    Sketcher.Constraint("DistanceX", 59, 1, -1, 1, Q("31 in")),
    Sketcher.Constraint("DistanceX", 10, 3, -1, 1, Q("6.8 in")),
    Sketcher.Constraint("DistanceX", 12, 3, -1, 1, Q("12.8 in")),
    Sketcher.Constraint("DistanceX", 14, 3, -1, 1, Q("18.8 in")),
    Sketcher.Constraint("DistanceX", 16, 3, -1, 1, Q("24.8 in")),
    Sketcher.Constraint("DistanceX", 18, 3, -1, 1, Q("30.8 in")),
    Sketcher.Constraint("DistanceX", 19, 3, -1, 1, Q("34.2 in")),
    Sketcher.Constraint("DistanceX", 21, 3, -1, 1, Q("30.1 in")),
    Sketcher.Constraint("DistanceY", 21, 3, -1, 1, Q("3.6 in")),
    Sketcher.Constraint("DistanceX", 26, 3, -1, 1, Q("29.1 in")),
    Sketcher.Constraint("DistanceX", 27, 3, -1, 1, Q("26.1 in")),
    Sketcher.Constraint("DistanceX", 29, 3, -1, 1, Q("25.1 in")),
    Sketcher.Constraint("DistanceX", 32, 3, -1, 1, Q("24.1 in")),
    Sketcher.Constraint("DistanceX", 33, 3, -1, 1, Q("21.1 in")),
    Sketcher.Constraint("DistanceX", 35, 3, -1, 1, Q("20.1 in")),
    Sketcher.Constraint("DistanceX", 38, 3, -1, 1, Q("19.1 in")),
    Sketcher.Constraint("DistanceX", 39, 3, -1, 1, Q("16.1 in")),
    Sketcher.Constraint("DistanceX", 41, 3, -1, 1, Q("15.1 in")),
    Sketcher.Constraint("DistanceX", 44, 3, -1, 1, Q("14.1 in")),
    Sketcher.Constraint("DistanceX", 45, 3, -1, 1, Q("11.1 in")),
    Sketcher.Constraint("DistanceX", 47, 3, -1, 1, Q("10.1 in")),
    Sketcher.Constraint("DistanceX", 50, 3, -1, 1, Q("9.1 in")),
    Sketcher.Constraint("DistanceX", 51, 3, -1, 1, Q("6.1 in")),
    Sketcher.Constraint("DistanceX", 53, 3, -1, 1, Q("5.1 in")),
    Sketcher.Constraint("DistanceX", 56, 3, -1, 1, Q("4.1 in")),
    Sketcher.Constraint("DistanceX", 60, 3, -1, 1, Q("34.1 in")),
    Sketcher.Constraint("DistanceY", 61, 3, -1, 1, Q("4.1 in")),
    Sketcher.Constraint("DistanceY", 26, 3, -1, 1, Q("1.35 in")),
])
pad1 = doc.addObject("PartDesign::Pad", "Pad")
body.addObject(pad1)
pad1.Profile = sketch1
pad1.Length = Q("0.125 in")
pad1.Reversed = True

doc.recompute()
